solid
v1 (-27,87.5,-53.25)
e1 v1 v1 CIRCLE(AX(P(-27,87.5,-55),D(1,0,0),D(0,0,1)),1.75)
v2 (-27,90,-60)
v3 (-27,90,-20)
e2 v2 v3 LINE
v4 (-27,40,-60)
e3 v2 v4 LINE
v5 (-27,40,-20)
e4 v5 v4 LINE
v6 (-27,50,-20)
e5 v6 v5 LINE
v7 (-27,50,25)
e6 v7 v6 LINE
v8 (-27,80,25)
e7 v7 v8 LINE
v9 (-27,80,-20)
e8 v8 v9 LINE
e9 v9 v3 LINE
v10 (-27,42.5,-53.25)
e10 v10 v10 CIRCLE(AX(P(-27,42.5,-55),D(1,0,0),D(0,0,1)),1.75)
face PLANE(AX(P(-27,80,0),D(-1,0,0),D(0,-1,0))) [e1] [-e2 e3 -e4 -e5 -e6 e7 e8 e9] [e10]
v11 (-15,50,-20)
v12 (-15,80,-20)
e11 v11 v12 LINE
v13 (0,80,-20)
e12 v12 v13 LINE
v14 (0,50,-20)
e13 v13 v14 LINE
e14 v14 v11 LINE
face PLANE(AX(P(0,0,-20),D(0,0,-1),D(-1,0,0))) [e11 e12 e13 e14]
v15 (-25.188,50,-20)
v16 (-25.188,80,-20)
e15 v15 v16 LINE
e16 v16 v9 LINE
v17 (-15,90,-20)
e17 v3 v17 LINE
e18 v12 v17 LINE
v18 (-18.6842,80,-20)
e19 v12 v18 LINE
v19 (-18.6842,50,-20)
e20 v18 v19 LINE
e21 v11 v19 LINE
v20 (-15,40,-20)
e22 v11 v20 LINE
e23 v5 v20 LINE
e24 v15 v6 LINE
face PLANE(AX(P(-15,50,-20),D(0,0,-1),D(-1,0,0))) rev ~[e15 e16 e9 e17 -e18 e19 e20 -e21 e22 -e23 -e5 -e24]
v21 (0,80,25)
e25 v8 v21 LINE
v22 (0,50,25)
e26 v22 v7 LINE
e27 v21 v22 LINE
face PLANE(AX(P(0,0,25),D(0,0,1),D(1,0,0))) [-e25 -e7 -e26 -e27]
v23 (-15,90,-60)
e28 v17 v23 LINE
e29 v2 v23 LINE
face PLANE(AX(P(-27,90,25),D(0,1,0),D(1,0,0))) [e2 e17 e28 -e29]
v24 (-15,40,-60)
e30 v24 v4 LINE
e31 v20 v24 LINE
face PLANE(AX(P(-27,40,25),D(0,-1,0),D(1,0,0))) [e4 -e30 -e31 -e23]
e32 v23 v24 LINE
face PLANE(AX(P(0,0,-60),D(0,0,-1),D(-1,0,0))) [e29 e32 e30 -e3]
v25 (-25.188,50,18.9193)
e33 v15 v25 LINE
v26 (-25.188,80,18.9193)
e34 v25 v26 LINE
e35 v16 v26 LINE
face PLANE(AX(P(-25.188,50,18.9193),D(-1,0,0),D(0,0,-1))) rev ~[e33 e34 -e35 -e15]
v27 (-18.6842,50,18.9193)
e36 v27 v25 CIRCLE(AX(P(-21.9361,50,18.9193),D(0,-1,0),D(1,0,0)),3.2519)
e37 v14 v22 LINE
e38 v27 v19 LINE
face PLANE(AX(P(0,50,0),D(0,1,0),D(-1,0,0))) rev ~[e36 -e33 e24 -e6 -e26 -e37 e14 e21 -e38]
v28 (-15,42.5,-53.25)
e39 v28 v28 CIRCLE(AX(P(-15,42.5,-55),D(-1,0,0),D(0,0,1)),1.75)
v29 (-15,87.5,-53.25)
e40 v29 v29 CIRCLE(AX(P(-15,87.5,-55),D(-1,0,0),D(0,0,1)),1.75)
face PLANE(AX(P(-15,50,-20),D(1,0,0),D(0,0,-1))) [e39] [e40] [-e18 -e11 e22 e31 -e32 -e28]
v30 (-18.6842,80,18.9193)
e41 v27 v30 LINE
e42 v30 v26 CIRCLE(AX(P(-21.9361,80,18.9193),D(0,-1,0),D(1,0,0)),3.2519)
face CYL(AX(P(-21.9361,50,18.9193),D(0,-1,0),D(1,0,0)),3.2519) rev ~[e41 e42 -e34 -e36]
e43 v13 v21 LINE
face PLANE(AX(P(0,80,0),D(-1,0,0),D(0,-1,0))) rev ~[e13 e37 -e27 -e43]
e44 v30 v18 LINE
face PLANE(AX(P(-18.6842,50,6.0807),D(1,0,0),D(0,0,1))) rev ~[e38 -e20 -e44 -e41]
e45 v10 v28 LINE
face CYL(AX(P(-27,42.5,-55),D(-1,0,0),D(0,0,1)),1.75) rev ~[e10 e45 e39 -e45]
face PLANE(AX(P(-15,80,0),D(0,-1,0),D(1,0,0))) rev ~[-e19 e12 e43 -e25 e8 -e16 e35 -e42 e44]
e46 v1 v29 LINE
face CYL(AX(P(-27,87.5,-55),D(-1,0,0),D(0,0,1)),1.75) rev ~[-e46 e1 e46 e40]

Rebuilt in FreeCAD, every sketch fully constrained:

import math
import FreeCAD as App
import Part
import Sketcher

V = App.Vector
Q = App.Units.Quantity

doc = App.newDocument("Part")
params = doc.addObject("Spreadsheet::Sheet", "Params")
for row, (alias, value) in enumerate([
    ("sketch1_height", "30 mm"),
    ("sketch1_width", "27 mm"),
    ("pad1_length", "25 mm"),
    ("sketch2_diameter", "6.5 mm"),
    ("sketch4_width", "12 mm"),
    ("sketch4_height", "30 mm"),
    ("pad2_length", "60 mm"),
    ("sketch6_width", "15 mm"),
    ("sketch6_height", "30 mm"),
    ("pad3_length", "20 mm"),
    ("sketch7_width", "12 mm"),
    ("sketch7_height", "40 mm"),
    ("pad4_length", "10 mm"),
    ("sketch8_width", "12 mm"),
    ("sketch8_height", "40 mm"),
    ("pad5_length", "10 mm"),
    ("sketch9_width", "12 mm"),
    ("sketch9_height", "40 mm"),
    ("pad6_length", "50 mm"),
    ("sketch10_diameter", "3.5 mm"),
], start=1):
    params.set(f"A{row}", alias)
    params.set(f"B{row}", "=" + value)
    params.setAlias(f"B{row}", alias)

body = doc.addObject("PartDesign::Body", "Body")

# Sketch on XY plane
sketch1 = body.newObject("Sketcher::SketchObject", "Sketch")
sketch1.AttachmentSupport = (doc.getObject("XY_Plane"), [""])
sketch1.MapMode = "FlatFace"
sketch1.addGeometry([
    Part.LineSegment(V(0, 80, 0), V(-27, 80, 0)),
    Part.LineSegment(V(-27, 80, 0), V(-27, 50, 0)),
    Part.LineSegment(V(-27, 50, 0), V(0, 50, 0)),
    Part.LineSegment(V(0, 50, 0), V(0, 80, 0)),
], False)
sketch1.addConstraint([
    Sketcher.Constraint("Coincident", 0, 2, 1, 1),
    Sketcher.Constraint("Coincident", 1, 2, 2, 1),
    Sketcher.Constraint("Coincident", 2, 2, 3, 1),
    Sketcher.Constraint("Coincident", 3, 2, 0, 1),
    Sketcher.Constraint("Horizontal", 0),
    Sketcher.Constraint("Vertical", 1),
    Sketcher.Constraint("Horizontal", 2),
    Sketcher.Constraint("Vertical", 3),
    Sketcher.Constraint("PointOnObject", 2, 2, -2),
    Sketcher.Constraint("DistanceY", 1, 2, 1, 1, Q("30 mm")),
    Sketcher.Constraint("DistanceX", 0, 2, 0, 1, Q("27 mm")),
    Sketcher.Constraint("DistanceY", -1, 1, 0, 2, Q("80 mm")),
])
sketch1.setExpression("Constraints[9]", "Params.sketch1_height")
sketch1.setExpression("Constraints[10]", "Params.sketch1_width")
pad1 = body.newObject("PartDesign::Pad", "Pad")
pad1.Profile = sketch1
pad1.setExpression("Length", "Params.pad1_length")

# Sketch on XZ plane
sketch2 = body.newObject("Sketcher::SketchObject", "Sketch001")
sketch2.AttachmentSupport = (doc.getObject("XZ_Plane"), [""])
sketch2.MapMode = "FlatFace"
sketch2.AttachmentOffset = App.Placement(V(0, 0, -80), App.Rotation())
sketch2.addGeometry(Part.Circle(V(-21.9, 12.5, 0), V(0, 0, 1), 3.2), False)
sketch2.addConstraint([
    Sketcher.Constraint("Diameter", 0, Q("6.5 mm")),
    Sketcher.Constraint("DistanceY", -1, 1, 0, 3, Q("12.5 mm")),
    Sketcher.Constraint("DistanceX", 0, 3, -1, 1, Q("21.936 mm")),
])
sketch2.setExpression("Constraints[0]", "Params.sketch2_diameter")
pocket1 = body.newObject("PartDesign::Pocket", "Pocket")
pocket1.Profile = sketch2
pocket1.Type = "ThroughAll"
pocket1.Reversed = True

# Sketch on XZ plane
sketch3 = body.newObject("Sketcher::SketchObject", "Sketch002")
sketch3.AttachmentSupport = (doc.getObject("XZ_Plane"), [""])
sketch3.MapMode = "FlatFace"
sketch3.AttachmentOffset = App.Placement(V(0, 0, -50), App.Rotation())
sketch3.addGeometry([
    Part.ArcOfCircle(Part.Circle(V(-21.9, 18.9, 0), V(0, 0, 1), 3.3), math.radians(0), math.radians(180)),
    Part.LineSegment(V(-25.2, 18.9, 0), V(-25.2, 6.1, 0)),
    Part.ArcOfCircle(Part.Circle(V(-21.9, 6.1, 0), V(0, 0, 1), 3.3), math.radians(180), math.radians(360)),
    Part.LineSegment(V(-18.7, 6.1, 0), V(-18.7, 18.9, 0)),
], False)
sketch3.addConstraint([
    Sketcher.Constraint("Tangent", 0, 2, 1, 1),
    Sketcher.Constraint("Tangent", 1, 2, 2, 1),
    Sketcher.Constraint("Tangent", 2, 2, 3, 1),
    Sketcher.Constraint("Tangent", 3, 2, 0, 1),
    Sketcher.Constraint("Vertical", 1),
    Sketcher.Constraint("Vertical", 3),
    Sketcher.Constraint("Radius", 0, Q("3.252 mm")),
    Sketcher.Constraint("DistanceY", 1, 2, 1, 1, Q("12.8386 mm")),
    Sketcher.Constraint("DistanceX", 0, 3, -1, 1, Q("21.936 mm")),
    Sketcher.Constraint("DistanceY", -1, 1, 0, 3, Q("18.9193 mm")),
])
pocket2 = body.newObject("PartDesign::Pocket", "Pocket001")
pocket2.Profile = sketch3
pocket2.Type = "ThroughAll"

# Sketch on XY plane
sketch4 = body.newObject("Sketcher::SketchObject", "Sketch003")
sketch4.AttachmentSupport = (doc.getObject("XY_Plane"), [""])
sketch4.MapMode = "FlatFace"
sketch4.addGeometry([
    Part.LineSegment(V(-15, 50, 0), V(-27, 50, 0)),
    Part.LineSegment(V(-27, 50, 0), V(-27, 80, 0)),
    Part.LineSegment(V(-27, 80, 0), V(-15, 80, 0)),
    Part.LineSegment(V(-15, 80, 0), V(-15, 50, 0)),
], False)
sketch4.addConstraint([
    Sketcher.Constraint("Coincident", 0, 2, 1, 1),
    Sketcher.Constraint("Coincident", 1, 2, 2, 1),
    Sketcher.Constraint("Coincident", 2, 2, 3, 1),
    Sketcher.Constraint("Coincident", 3, 2, 0, 1),
    Sketcher.Constraint("Horizontal", 0),
    Sketcher.Constraint("Vertical", 1),
    Sketcher.Constraint("Horizontal", 2),
    Sketcher.Constraint("Vertical", 3),
    Sketcher.Constraint("DistanceX", 0, 2, 0, 1, Q("12 mm")),
    Sketcher.Constraint("DistanceY", 1, 1, 1, 2, Q("30 mm")),
    Sketcher.Constraint("DistanceX", 0, 2, -1, 1, Q("27 mm")),
    Sketcher.Constraint("DistanceY", -1, 1, 0, 2, Q("50 mm")),
])
sketch4.setExpression("Constraints[8]", "Params.sketch4_width")
sketch4.setExpression("Constraints[9]", "Params.sketch4_height")
pad2 = body.newObject("PartDesign::Pad", "Pad001")
pad2.Profile = sketch4
pad2.setExpression("Length", "Params.pad2_length")
pad2.Reversed = True

# Sketch on XZ plane
sketch5 = body.newObject("Sketcher::SketchObject", "Sketch004")
sketch5.AttachmentSupport = (doc.getObject("XZ_Plane"), [""])
sketch5.MapMode = "FlatFace"
sketch5.AttachmentOffset = App.Placement(V(0, 0, -80), App.Rotation())
sketch5.addGeometry([
    Part.ArcOfCircle(Part.Circle(V(-21.9, 6.1, 0), V(0, 0, 1), 3.3), math.radians(0), math.radians(180)),
    Part.LineSegment(V(-18.7, 6.1, 0), V(-18.7, -52.8, 0)),
    Part.ArcOfCircle(Part.Circle(V(-21.9, -52.8, 0), V(0, 0, 1), 3.3), math.radians(180), math.radians(360)),
    Part.LineSegment(V(-25.2, -52.8, 0), V(-25.2, 6.1, 0)),
], False)
sketch5.addConstraint([
    Sketcher.Constraint("Tangent", 0, 1, 1, 1),
    Sketcher.Constraint("Tangent", 1, 2, 2, 2),
    Sketcher.Constraint("Tangent", 2, 1, 3, 1),
    Sketcher.Constraint("Tangent", 3, 2, 0, 2),
    Sketcher.Constraint("Vertical", 1),
    Sketcher.Constraint("Vertical", 3),
    Sketcher.Constraint("Radius", 0, Q("3.252 mm")),
    Sketcher.Constraint("DistanceY", 1, 2, 1, 1, Q("58.9026 mm")),
    Sketcher.Constraint("DistanceX", 0, 3, -1, 1, Q("21.936 mm")),
    Sketcher.Constraint("DistanceY", 2, 3, -1, 1, Q("52.822 mm")),
])
pocket3 = body.newObject("PartDesign::Pocket", "Pocket002")
pocket3.Profile = sketch5
pocket3.Type = "ThroughAll"
pocket3.Reversed = True

# Sketch on XY plane
sketch6 = body.newObject("Sketcher::SketchObject", "Sketch005")
sketch6.AttachmentSupport = (doc.getObject("XY_Plane"), [""])
sketch6.MapMode = "FlatFace"
sketch6.addGeometry([
    Part.LineSegment(V(0, 50, 0), V(-15, 50, 0)),
    Part.LineSegment(V(-15, 50, 0), V(-15, 80, 0)),
    Part.LineSegment(V(-15, 80, 0), V(0, 80, 0)),
    Part.LineSegment(V(0, 80, 0), V(0, 50, 0)),
], False)
sketch6.addConstraint([
    Sketcher.Constraint("Coincident", 0, 2, 1, 1),
    Sketcher.Constraint("Coincident", 1, 2, 2, 1),
    Sketcher.Constraint("Coincident", 2, 2, 3, 1),
    Sketcher.Constraint("Coincident", 3, 2, 0, 1),
    Sketcher.Constraint("Horizontal", 0),
    Sketcher.Constraint("Vertical", 1),
    Sketcher.Constraint("Horizontal", 2),
    Sketcher.Constraint("Vertical", 3),
    Sketcher.Constraint("PointOnObject", 2, 2, -2),
    Sketcher.Constraint("DistanceX", 0, 2, 0, 1, Q("15 mm")),
    Sketcher.Constraint("DistanceY", 1, 1, 1, 2, Q("30 mm")),
    Sketcher.Constraint("DistanceY", -1, 1, 0, 2, Q("50 mm")),
])
sketch6.setExpression("Constraints[9]", "Params.sketch6_width")
sketch6.setExpression("Constraints[10]", "Params.sketch6_height")
pad3 = body.newObject("PartDesign::Pad", "Pad002")
pad3.Profile = sketch6
pad3.setExpression("Length", "Params.pad3_length")
pad3.Reversed = True

# Sketch on XZ plane
sketch7 = body.newObject("Sketcher::SketchObject", "Sketch006")
sketch7.AttachmentSupport = (doc.getObject("XZ_Plane"), [""])
sketch7.MapMode = "FlatFace"
sketch7.AttachmentOffset = App.Placement(V(0, 0, -50), App.Rotation())
sketch7.addGeometry([
    Part.LineSegment(V(-15, -20, 0), V(-27, -20, 0)),
    Part.LineSegment(V(-27, -20, 0), V(-27, -60, 0)),
    Part.LineSegment(V(-27, -60, 0), V(-15, -60, 0)),
    Part.LineSegment(V(-15, -60, 0), V(-15, -20, 0)),
], False)
sketch7.addConstraint([
    Sketcher.Constraint("Coincident", 0, 2, 1, 1),
    Sketcher.Constraint("Coincident", 1, 2, 2, 1),
    Sketcher.Constraint("Coincident", 2, 2, 3, 1),
    Sketcher.Constraint("Coincident", 3, 2, 0, 1),
    Sketcher.Constraint("Horizontal", 0),
    Sketcher.Constraint("Vertical", 1),
    Sketcher.Constraint("Horizontal", 2),
    Sketcher.Constraint("Vertical", 3),
    Sketcher.Constraint("DistanceX", 0, 2, 0, 1, Q("12 mm")),
    Sketcher.Constraint("DistanceY", 1, 2, 1, 1, Q("40 mm")),
    Sketcher.Constraint("DistanceX", 0, 2, -1, 1, Q("27 mm")),
    Sketcher.Constraint("DistanceY", 0, 2, -1, 1, Q("20 mm")),
])
sketch7.setExpression("Constraints[8]", "Params.sketch7_width")
sketch7.setExpression("Constraints[9]", "Params.sketch7_height")
pad4 = body.newObject("PartDesign::Pad", "Pad003")
pad4.Profile = sketch7
pad4.setExpression("Length", "Params.pad4_length")

# Sketch on XZ plane
sketch8 = body.newObject("Sketcher::SketchObject", "Sketch007")
sketch8.AttachmentSupport = (doc.getObject("XZ_Plane"), [""])
sketch8.MapMode = "FlatFace"
sketch8.AttachmentOffset = App.Placement(V(0, 0, -80), App.Rotation())
sketch8.addGeometry([
    Part.LineSegment(V(-15, -60, 0), V(-27, -60, 0)),
    Part.LineSegment(V(-27, -60, 0), V(-27, -20, 0)),
    Part.LineSegment(V(-27, -20, 0), V(-15, -20, 0)),
    Part.LineSegment(V(-15, -20, 0), V(-15, -60, 0)),
], False)
sketch8.addConstraint([
    Sketcher.Constraint("Coincident", 0, 2, 1, 1),
    Sketcher.Constraint("Coincident", 1, 2, 2, 1),
    Sketcher.Constraint("Coincident", 2, 2, 3, 1),
    Sketcher.Constraint("Coincident", 3, 2, 0, 1),
    Sketcher.Constraint("Horizontal", 0),
    Sketcher.Constraint("Vertical", 1),
    Sketcher.Constraint("Horizontal", 2),
    Sketcher.Constraint("Vertical", 3),
    Sketcher.Constraint("DistanceX", 0, 2, 0, 1, Q("12 mm")),
    Sketcher.Constraint("DistanceY", 1, 1, 1, 2, Q("40 mm")),
    Sketcher.Constraint("DistanceX", 0, 2, -1, 1, Q("27 mm")),
    Sketcher.Constraint("DistanceY", 0, 2, -1, 1, Q("60 mm")),
])
sketch8.setExpression("Constraints[8]", "Params.sketch8_width")
sketch8.setExpression("Constraints[9]", "Params.sketch8_height")
pad5 = body.newObject("PartDesign::Pad", "Pad004")
pad5.Profile = sketch8
pad5.setExpression("Length", "Params.pad5_length")
pad5.Reversed = True

# Sketch on XZ plane
sketch9 = body.newObject("Sketcher::SketchObject", "Sketch008")
sketch9.AttachmentSupport = (doc.getObject("XZ_Plane"), [""])
sketch9.MapMode = "FlatFace"
sketch9.AttachmentOffset = App.Placement(V(0, 0, -40), App.Rotation())
sketch9.addGeometry([
    Part.LineSegment(V(-27, -20, 0), V(-27, -60, 0)),
    Part.LineSegment(V(-27, -60, 0), V(-15, -60, 0)),
    Part.LineSegment(V(-15, -60, 0), V(-15, -20, 0)),
    Part.LineSegment(V(-15, -20, 0), V(-27, -20, 0)),
], False)
sketch9.addConstraint([
    Sketcher.Constraint("Coincident", 0, 2, 1, 1),
    Sketcher.Constraint("Coincident", 1, 2, 2, 1),
    Sketcher.Constraint("Coincident", 2, 2, 3, 1),
    Sketcher.Constraint("Coincident", 3, 2, 0, 1),
    Sketcher.Constraint("Vertical", 0),
    Sketcher.Constraint("Horizontal", 1),
    Sketcher.Constraint("Vertical", 2),
    Sketcher.Constraint("Horizontal", 3),
    Sketcher.Constraint("DistanceX", 1, 1, 1, 2, Q("12 mm")),
    Sketcher.Constraint("DistanceY", 0, 2, 0, 1, Q("40 mm")),
    Sketcher.Constraint("DistanceX", 0, 2, -1, 1, Q("27 mm")),
    Sketcher.Constraint("DistanceY", 0, 2, -1, 1, Q("60 mm")),
])
sketch9.setExpression("Constraints[8]", "Params.sketch9_width")
sketch9.setExpression("Constraints[9]", "Params.sketch9_height")
pad6 = body.newObject("PartDesign::Pad", "Pad005")
pad6.Profile = sketch9
pad6.setExpression("Length", "Params.pad6_length")
pad6.Reversed = True

# Sketch on YZ plane
sketch10 = body.newObject("Sketcher::SketchObject", "Sketch009")
sketch10.AttachmentSupport = (doc.getObject("YZ_Plane"), [""])
sketch10.MapMode = "FlatFace"
sketch10.AttachmentOffset = App.Placement(V(0, 0, -27), App.Rotation())
sketch10.addGeometry([
    Part.Circle(V(87.5, -55, 0), V(0, 0, 1), 1.8),
    Part.Circle(V(42.5, -55, 0), V(0, 0, 1), 1.8),
], False)
sketch10.addConstraint([
    Sketcher.Constraint("Equal", 0, 1),
    Sketcher.Constraint("Horizontal", 0, 3, 1, 3),
    Sketcher.Constraint("Diameter", 0, Q("3.5 mm")),
    Sketcher.Constraint("DistanceX", 1, 3, 0, 3, Q("45 mm")),
    Sketcher.Constraint("DistanceY", 0, 3, -1, 1, Q("55 mm")),
    Sketcher.Constraint("DistanceX", -1, 1, 0, 3, Q("87.5 mm")),
])
sketch10.setExpression("Constraints[2]", "Params.sketch10_diameter")
pocket4 = body.newObject("PartDesign::Pocket", "Pocket003")
pocket4.Profile = sketch10
pocket4.Type = "ThroughAll"
pocket4.Reversed = True

doc.recompute()
